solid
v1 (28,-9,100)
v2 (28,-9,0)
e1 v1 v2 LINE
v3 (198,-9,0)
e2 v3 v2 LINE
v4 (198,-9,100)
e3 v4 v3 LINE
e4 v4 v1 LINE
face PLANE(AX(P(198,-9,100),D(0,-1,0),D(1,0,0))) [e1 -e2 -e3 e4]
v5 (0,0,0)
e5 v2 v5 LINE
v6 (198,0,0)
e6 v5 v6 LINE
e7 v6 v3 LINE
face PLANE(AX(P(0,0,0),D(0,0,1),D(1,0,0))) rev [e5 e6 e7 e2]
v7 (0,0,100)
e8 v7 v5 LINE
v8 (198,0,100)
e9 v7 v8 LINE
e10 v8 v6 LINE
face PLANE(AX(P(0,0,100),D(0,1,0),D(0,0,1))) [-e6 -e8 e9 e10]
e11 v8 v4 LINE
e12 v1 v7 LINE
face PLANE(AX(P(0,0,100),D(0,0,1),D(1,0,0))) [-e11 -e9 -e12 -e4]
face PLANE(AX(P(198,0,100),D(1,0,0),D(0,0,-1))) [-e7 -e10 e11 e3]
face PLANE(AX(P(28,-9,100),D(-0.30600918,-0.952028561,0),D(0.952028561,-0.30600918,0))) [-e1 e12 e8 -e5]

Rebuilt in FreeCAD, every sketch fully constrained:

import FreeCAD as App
import Part
import Sketcher

V = App.Vector
Q = App.Units.Quantity

doc = App.newDocument("Part")
body = doc.addObject("PartDesign::Body", "Body")

sketch1 = body.newObject("Sketcher::SketchObject", "Sketch")
sketch1.AttachmentSupport = (doc.getObject("XY_Plane"), [""])
sketch1.MapMode = "FlatFace"
sketch1.addGeometry([
    Part.LineSegment(V(198, 0, 0), V(0, 0, 0)),
    Part.LineSegment(V(0, 0, 0), V(28, -9, 0)),
    Part.LineSegment(V(28, -9, 0), V(198, -9, 0)),
    Part.LineSegment(V(198, -9, 0), V(198, 0, 0)),
], False)
sketch1.addConstraint([
    Sketcher.Constraint("Coincident", 0, 2, 1, 1),
    Sketcher.Constraint("Coincident", 1, 2, 2, 1),
    Sketcher.Constraint("Coincident", 2, 2, 3, 1),
    Sketcher.Constraint("Coincident", 3, 2, 0, 1),
    Sketcher.Constraint("Horizontal", 0),
    Sketcher.Constraint("Horizontal", 2),
    Sketcher.Constraint("Vertical", 3),
    Sketcher.Constraint("Coincident", 0, 2, -1, 1),
    Sketcher.Constraint("DistanceX", 0, 2, 0, 1, Q("198 mm")),
    Sketcher.Constraint("DistanceX", 2, 1, 2, 2, Q("170 mm")),
    Sketcher.Constraint("DistanceY", 3, 1, 3, 2, Q("9 mm")),
])
pad1 = body.newObject("PartDesign::Pad", "Pad")
pad1.Profile = sketch1
pad1.Length = 100

doc.recompute()
